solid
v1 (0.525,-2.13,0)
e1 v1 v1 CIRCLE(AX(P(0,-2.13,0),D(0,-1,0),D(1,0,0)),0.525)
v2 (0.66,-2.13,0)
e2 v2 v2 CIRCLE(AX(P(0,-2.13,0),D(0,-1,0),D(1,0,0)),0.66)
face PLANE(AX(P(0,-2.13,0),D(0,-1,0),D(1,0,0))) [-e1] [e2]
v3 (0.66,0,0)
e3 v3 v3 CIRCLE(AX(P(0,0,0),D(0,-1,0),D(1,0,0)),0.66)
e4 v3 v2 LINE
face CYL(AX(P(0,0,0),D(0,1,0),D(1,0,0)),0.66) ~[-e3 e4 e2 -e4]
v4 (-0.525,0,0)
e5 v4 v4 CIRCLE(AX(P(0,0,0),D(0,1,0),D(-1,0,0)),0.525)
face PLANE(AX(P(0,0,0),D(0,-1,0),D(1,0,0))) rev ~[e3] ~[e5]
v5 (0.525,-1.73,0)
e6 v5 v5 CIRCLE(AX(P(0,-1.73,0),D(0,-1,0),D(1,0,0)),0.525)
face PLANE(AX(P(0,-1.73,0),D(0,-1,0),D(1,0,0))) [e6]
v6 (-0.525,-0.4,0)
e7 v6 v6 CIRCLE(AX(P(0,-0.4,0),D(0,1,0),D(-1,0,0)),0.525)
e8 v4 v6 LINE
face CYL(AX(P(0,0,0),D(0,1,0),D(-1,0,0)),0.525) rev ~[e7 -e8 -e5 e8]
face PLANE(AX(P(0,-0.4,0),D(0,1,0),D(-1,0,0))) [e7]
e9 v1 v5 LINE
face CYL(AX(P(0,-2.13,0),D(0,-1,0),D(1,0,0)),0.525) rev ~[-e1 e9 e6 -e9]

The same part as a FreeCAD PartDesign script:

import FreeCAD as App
import Part
import Sketcher

doc = App.newDocument("Part")
params = doc.addObject("Spreadsheet::Sheet", "Params")
for row, (alias, value) in enumerate([
    ("sketch1_diameter", "1.32 mm"),
    ("pad1_length", "2.13 mm"),
    ("sketch2_diameter", "1.05 mm"),
    ("pocket1_length", "0.4 mm"),
    ("sketch3_diameter", "1.05 mm"),
    ("pocket2_length", "0.4 mm"),
], start=1):
    params.set(f"A{row}", alias)
    params.set(f"B{row}", "=" + value)
    params.setAlias(f"B{row}", alias)

body = doc.addObject("PartDesign::Body", "Body")

# Sketch on XZ plane
sketch1 = body.newObject("Sketcher::SketchObject", "Sketch")
sketch1.AttachmentSupport = (doc.getObject("XZ_Plane"), [""])
sketch1.MapMode = "FlatFace"
sketch1.addGeometry(Part.Circle(App.Vector(0, 0, 0), App.Vector(0, 0, 1), 0.7), False)
sketch1.addConstraint(Sketcher.Constraint("Coincident", 0, 3, -1, 1))
sketch1.addConstraint(Sketcher.Constraint("Diameter", 0, 1.32))
sketch1.setExpression("Constraints[1]", "Params.sketch1_diameter")
pad1 = body.newObject("PartDesign::Pad", "Pad")
pad1.Profile = sketch1
pad1.setExpression("Length", "Params.pad1_length")

# Sketch on XZ plane
sketch2 = body.newObject("Sketcher::SketchObject", "Sketch001")
sketch2.AttachmentSupport = (doc.getObject("XZ_Plane"), [""])
sketch2.MapMode = "FlatFace"
sketch2.addGeometry(Part.Circle(App.Vector(0, 0, 0), App.Vector(0, 0, 1), 0.5), False)
sketch2.addConstraint(Sketcher.Constraint("Coincident", 0, 3, -1, 1))
sketch2.addConstraint(Sketcher.Constraint("Diameter", 0, 1.05))
sketch2.setExpression("Constraints[1]", "Params.sketch2_diameter")
pocket1 = body.newObject("PartDesign::Pocket", "Pocket")
pocket1.Profile = sketch2
pocket1.setExpression("Length", "Params.pocket1_length")
pocket1.Reversed = True

# Sketch on XZ plane
sketch3 = body.newObject("Sketcher::SketchObject", "Sketch002")
sketch3.AttachmentSupport = (doc.getObject("XZ_Plane"), [""])
sketch3.MapMode = "FlatFace"
sketch3.AttachmentOffset = App.Placement(App.Vector(0, 0, 2.13), App.Rotation())
sketch3.addGeometry(Part.Circle(App.Vector(0, 0, 0), App.Vector(0, 0, 1), 0.5), False)
sketch3.addConstraint(Sketcher.Constraint("Coincident", 0, 3, -1, 1))
sketch3.addConstraint(Sketcher.Constraint("Diameter", 0, 1.05))
sketch3.setExpression("Constraints[1]", "Params.sketch3_diameter")
pocket2 = body.newObject("PartDesign::Pocket", "Pocket001")
pocket2.Profile = sketch3
pocket2.setExpression("Length", "Params.pocket2_length")

doc.recompute()
